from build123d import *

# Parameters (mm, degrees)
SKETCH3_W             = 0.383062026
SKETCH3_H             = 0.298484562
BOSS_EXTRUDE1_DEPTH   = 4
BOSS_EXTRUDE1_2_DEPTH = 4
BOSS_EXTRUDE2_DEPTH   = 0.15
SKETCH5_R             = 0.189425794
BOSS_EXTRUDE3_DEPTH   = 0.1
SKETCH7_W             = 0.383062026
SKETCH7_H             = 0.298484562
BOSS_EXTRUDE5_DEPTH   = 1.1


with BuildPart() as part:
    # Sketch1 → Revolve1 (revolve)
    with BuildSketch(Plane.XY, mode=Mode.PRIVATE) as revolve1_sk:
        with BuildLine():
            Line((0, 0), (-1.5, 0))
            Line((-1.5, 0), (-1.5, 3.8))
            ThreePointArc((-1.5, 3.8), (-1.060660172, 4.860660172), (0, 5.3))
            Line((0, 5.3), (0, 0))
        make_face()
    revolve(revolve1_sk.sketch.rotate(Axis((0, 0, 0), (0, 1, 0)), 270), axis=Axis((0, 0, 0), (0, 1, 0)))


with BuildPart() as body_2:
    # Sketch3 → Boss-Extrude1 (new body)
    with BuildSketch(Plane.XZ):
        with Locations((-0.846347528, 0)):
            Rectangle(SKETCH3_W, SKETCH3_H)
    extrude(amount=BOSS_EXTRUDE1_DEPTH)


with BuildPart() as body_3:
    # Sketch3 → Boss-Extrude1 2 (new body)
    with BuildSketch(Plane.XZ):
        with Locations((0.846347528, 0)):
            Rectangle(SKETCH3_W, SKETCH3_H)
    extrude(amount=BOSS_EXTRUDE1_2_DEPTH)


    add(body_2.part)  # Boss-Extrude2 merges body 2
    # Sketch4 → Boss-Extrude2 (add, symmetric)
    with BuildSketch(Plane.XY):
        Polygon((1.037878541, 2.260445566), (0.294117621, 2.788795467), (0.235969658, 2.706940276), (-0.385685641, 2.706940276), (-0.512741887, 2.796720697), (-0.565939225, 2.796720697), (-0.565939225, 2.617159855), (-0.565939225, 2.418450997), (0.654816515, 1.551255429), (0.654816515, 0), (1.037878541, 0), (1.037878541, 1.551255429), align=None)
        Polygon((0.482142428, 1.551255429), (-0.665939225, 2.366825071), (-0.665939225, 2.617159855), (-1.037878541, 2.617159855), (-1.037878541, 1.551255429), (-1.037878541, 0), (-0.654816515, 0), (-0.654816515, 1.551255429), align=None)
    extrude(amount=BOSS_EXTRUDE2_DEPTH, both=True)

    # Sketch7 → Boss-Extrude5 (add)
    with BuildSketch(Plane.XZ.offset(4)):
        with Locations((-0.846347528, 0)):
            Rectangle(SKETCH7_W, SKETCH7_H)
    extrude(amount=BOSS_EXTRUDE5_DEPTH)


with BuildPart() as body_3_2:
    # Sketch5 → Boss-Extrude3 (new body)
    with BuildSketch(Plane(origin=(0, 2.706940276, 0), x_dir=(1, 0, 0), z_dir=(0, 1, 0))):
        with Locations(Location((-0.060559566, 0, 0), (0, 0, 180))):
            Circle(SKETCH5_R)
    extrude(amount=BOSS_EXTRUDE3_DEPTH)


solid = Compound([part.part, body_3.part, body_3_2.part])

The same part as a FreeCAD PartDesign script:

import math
import FreeCAD as App
import Part
import Sketcher
from FreeCAD import Vector
Q = App.Units.Quantity

doc = App.newDocument("Part")
body = doc.addObject("PartDesign::Body", "Body")

sketch1 = doc.addObject("Sketcher::SketchObject", "Sketch")
body.addObject(sketch1)
sketch1.AttachmentSupport = (doc.XY_Plane, [""])
sketch1.MapMode = "FlatFace"
sketch1.addGeometry([
    Part.LineSegment(Vector(-1.5, 0, 0), Vector(0, 0, 0)),
    Part.LineSegment(Vector(0, 0, 0), Vector(0, 5.3, 0)),
    Part.ArcOfCircle(Part.Circle(Vector(0, 3.8, 0), Vector(0, 0, 1), 1.5), math.radians(90), math.radians(180)),
    Part.LineSegment(Vector(-1.5, 3.8, 0), Vector(-1.5, 0, 0)),
], False)
sketch1.addConstraint([
    Sketcher.Constraint("Coincident", 0, 2, 1, 1),
    Sketcher.Constraint("Coincident", 1, 2, 2, 1),
    Sketcher.Constraint("Tangent", 2, 2, 3, 1),
    Sketcher.Constraint("Coincident", 3, 2, 0, 1),
    Sketcher.Constraint("Horizontal", 0),
    Sketcher.Constraint("Vertical", 1),
    Sketcher.Constraint("Vertical", 3),
    Sketcher.Constraint("Coincident", 0, 2, -1, 1),
    Sketcher.Constraint("PointOnObject", 2, 3, -2),
    Sketcher.Constraint("Radius", 2, Q("1.5 mm")),
    Sketcher.Constraint("DistanceY", 1, 1, 1, 2, Q("5.3 mm")),
])
revolution = doc.addObject("PartDesign::Revolution", "Revolution")
body.addObject(revolution)
revolution.Profile = sketch1
revolution.ReferenceAxis = (sketch1, ["V_Axis"])
revolution.Angle = 360
body2 = doc.addObject("PartDesign::Body", "Body001")

sketch2 = doc.addObject("Sketcher::SketchObject", "Sketch001")
body2.addObject(sketch2)
sketch2.AttachmentSupport = (doc.getObject("XZ_Plane001"), [""])
sketch2.MapMode = "FlatFace"
sketch2.addGeometry([
    Part.LineSegment(Vector(-1.04, 0.15, 0), Vector(-1.04, -0.15, 0)),
    Part.LineSegment(Vector(-1.04, -0.15, 0), Vector(-0.65, -0.15, 0)),
    Part.LineSegment(Vector(-0.65, -0.15, 0), Vector(-0.65, 0.15, 0)),
    Part.LineSegment(Vector(-0.65, 0.15, 0), Vector(-1.04, 0.15, 0)),
], False)
sketch2.addConstraint([
    Sketcher.Constraint("Coincident", 0, 2, 1, 1),
    Sketcher.Constraint("Coincident", 1, 2, 2, 1),
    Sketcher.Constraint("Coincident", 2, 2, 3, 1),
    Sketcher.Constraint("Coincident", 3, 2, 0, 1),
    Sketcher.Constraint("Vertical", 0),
    Sketcher.Constraint("Horizontal", 1),
    Sketcher.Constraint("Vertical", 2),
    Sketcher.Constraint("Horizontal", 3),
    Sketcher.Constraint("DistanceX", 1, 1, 1, 2, Q("0.383062 mm")),
    Sketcher.Constraint("DistanceY", 0, 2, 0, 1, Q("0.298485 mm")),
    Sketcher.Constraint("DistanceX", 0, 2, -1, 1, Q("1.037879 mm")),
    Sketcher.Constraint("DistanceY", 0, 2, -1, 1, Q("0.149242 mm")),
])
pad1 = doc.addObject("PartDesign::Pad", "Pad")
body2.addObject(pad1)
pad1.Profile = sketch2
pad1.Length = 4
body3 = doc.addObject("PartDesign::Body", "Body002")
body3.AllowCompound = True

sketch3 = doc.addObject("Sketcher::SketchObject", "Sketch002")
body3.addObject(sketch3)
sketch3.AttachmentSupport = (doc.getObject("XZ_Plane002"), [""])
sketch3.MapMode = "FlatFace"
sketch3.addGeometry([
    Part.LineSegment(Vector(0.65, 0.15, 0), Vector(0.65, -0.15, 0)),
    Part.LineSegment(Vector(0.65, -0.15, 0), Vector(1.04, -0.15, 0)),
    Part.LineSegment(Vector(1.04, -0.15, 0), Vector(1.04, 0.15, 0)),
    Part.LineSegment(Vector(1.04, 0.15, 0), Vector(0.65, 0.15, 0)),
], False)
sketch3.addConstraint([
    Sketcher.Constraint("Coincident", 0, 2, 1, 1),
    Sketcher.Constraint("Coincident", 1, 2, 2, 1),
    Sketcher.Constraint("Coincident", 2, 2, 3, 1),
    Sketcher.Constraint("Coincident", 3, 2, 0, 1),
    Sketcher.Constraint("Vertical", 0),
    Sketcher.Constraint("Horizontal", 1),
    Sketcher.Constraint("Vertical", 2),
    Sketcher.Constraint("Horizontal", 3),
    Sketcher.Constraint("DistanceX", 1, 1, 1, 2, Q("0.383062 mm")),
    Sketcher.Constraint("DistanceY", 0, 2, 0, 1, Q("0.298485 mm")),
    Sketcher.Constraint("DistanceX", -1, 1, 1, 2, Q("1.037879 mm")),
    Sketcher.Constraint("DistanceY", 0, 2, -1, 1, Q("0.149242 mm")),
])
pad2 = doc.addObject("PartDesign::Pad", "Pad001")
body3.addObject(pad2)
pad2.Profile = sketch3
pad2.Length = 4
doc.recompute()

boolean = doc.addObject("PartDesign::Boolean", "Boolean")
body3.addObject(boolean)
boolean.Type = "Fuse"
boolean.addObjects([body2])

sketch4 = doc.addObject("Sketcher::SketchObject", "Sketch003")
body3.addObject(sketch4)
sketch4.AttachmentSupport = (doc.getObject("XY_Plane002"), [""])
sketch4.MapMode = "FlatFace"
sketch4.addGeometry([
    Part.LineSegment(Vector(1.04, 2.26, 0), Vector(0.29, 2.79, 0)),
    Part.LineSegment(Vector(0.29, 2.79, 0), Vector(0.24, 2.71, 0)),
    Part.LineSegment(Vector(0.24, 2.71, 0), Vector(-0.39, 2.71, 0)),
    Part.LineSegment(Vector(-0.39, 2.71, 0), Vector(-0.51, 2.8, 0)),
    Part.LineSegment(Vector(-0.51, 2.8, 0), Vector(-0.57, 2.8, 0)),
    Part.LineSegment(Vector(-0.57, 2.8, 0), Vector(-0.57, 2.42, 0)),
    Part.LineSegment(Vector(-0.57, 2.42, 0), Vector(0.65, 1.55, 0)),
    Part.LineSegment(Vector(0.65, 1.55, 0), Vector(0.65, 0, 0)),
    Part.LineSegment(Vector(0.65, 0, 0), Vector(1.04, 0, 0)),
    Part.LineSegment(Vector(1.04, 0, 0), Vector(1.04, 2.26, 0)),
    Part.LineSegment(Vector(0.48, 1.55, 0), Vector(-0.67, 2.37, 0)),
    Part.LineSegment(Vector(-0.67, 2.37, 0), Vector(-0.67, 2.62, 0)),
    Part.LineSegment(Vector(-0.67, 2.62, 0), Vector(-1.04, 2.62, 0)),
    Part.LineSegment(Vector(-1.04, 2.62, 0), Vector(-1.04, 0, 0)),
    Part.LineSegment(Vector(-1.04, 0, 0), Vector(-0.65, 0, 0)),
    Part.LineSegment(Vector(-0.65, 0, 0), Vector(-0.65, 1.55, 0)),
    Part.LineSegment(Vector(-0.65, 1.55, 0), Vector(0.48, 1.55, 0)),
], False)
sketch4.addConstraint([
    Sketcher.Constraint("Coincident", 0, 2, 1, 1),
    Sketcher.Constraint("Coincident", 1, 2, 2, 1),
    Sketcher.Constraint("Coincident", 2, 2, 3, 1),
    Sketcher.Constraint("Coincident", 3, 2, 4, 1),
    Sketcher.Constraint("Coincident", 4, 2, 5, 1),
    Sketcher.Constraint("Coincident", 5, 2, 6, 1),
    Sketcher.Constraint("Coincident", 6, 2, 7, 1),
    Sketcher.Constraint("Coincident", 7, 2, 8, 1),
    Sketcher.Constraint("Coincident", 8, 2, 9, 1),
    Sketcher.Constraint("Coincident", 9, 2, 0, 1),
    Sketcher.Constraint("Coincident", 10, 2, 11, 1),
    Sketcher.Constraint("Coincident", 11, 2, 12, 1),
    Sketcher.Constraint("Coincident", 12, 2, 13, 1),
    Sketcher.Constraint("Coincident", 13, 2, 14, 1),
    Sketcher.Constraint("Coincident", 14, 2, 15, 1),
    Sketcher.Constraint("Coincident", 15, 2, 16, 1),
    Sketcher.Constraint("Coincident", 16, 2, 10, 1),
    Sketcher.Constraint("Horizontal", 2),
    Sketcher.Constraint("Horizontal", 4),
    Sketcher.Constraint("Vertical", 5),
    Sketcher.Constraint("Vertical", 7),
    Sketcher.Constraint("Horizontal", 8),
    Sketcher.Constraint("Vertical", 9),
    Sketcher.Constraint("Vertical", 11),
    Sketcher.Constraint("Horizontal", 12),
    Sketcher.Constraint("Vertical", 13),
    Sketcher.Constraint("Horizontal", 14),
    Sketcher.Constraint("Vertical", 15),
    Sketcher.Constraint("Horizontal", 16),
    Sketcher.Constraint("Symmetric", 8, 2, 13, 2, -1, 1),
    Sketcher.Constraint("Symmetric", 7, 2, 14, 2, -2),
    Sketcher.Constraint("Perpendicular", 0, 1),
    Sketcher.Constraint("Perpendicular", 1, 6),
    Sketcher.Constraint("Parallel", 6, 10),
    Sketcher.Constraint("Horizontal", 6, 2, 15, 2),
    Sketcher.Constraint("DistanceX", 10, 2, 5, 2, Q("0.1 mm")),
    Sketcher.Constraint("DistanceX", 12, 2, 12, 1, Q("0.371939 mm")),
    Sketcher.Constraint("DistanceX", 16, 1, 16, 2, Q("1.136959 mm")),
    Sketcher.Constraint("DistanceY", 5, 2, 5, 1, Q("0.37827 mm")),
    Sketcher.Constraint("DistanceY", 13, 2, 13, 1, Q("2.61716 mm")),
    Sketcher.Constraint("DistanceX", 0, 2, 6, 2, Q("0.360699 mm")),
    Sketcher.Constraint("DistanceX", 2, 2, 2, 1, Q("0.621655 mm")),
    Sketcher.Constraint("DistanceX", 4, 2, 4, 1, Q("0.053197 mm")),
    Sketcher.Constraint("DistanceX", 8, 1, 8, 2, Q("0.383062 mm")),
    Sketcher.Constraint("DistanceY", 7, 2, 7, 1, Q("1.551255 mm")),
    Sketcher.Constraint("DistanceY", 9, 1, 9, 2, Q("2.260446 mm")),
    Sketcher.Constraint("DistanceY", 11, 1, 11, 2, Q("0.250335 mm")),
    Sketcher.Constraint("DistanceX", -1, 1, 1, 2, Q("0.23597 mm")),
    Sketcher.Constraint("DistanceY", -1, 1, 1, 2, Q("2.70694 mm")),
])
pad3 = doc.addObject("PartDesign::Pad", "Pad002")
body3.addObject(pad3)
pad3.Profile = sketch4
pad3.Length = 0.3
pad3.Midplane = True

sketch5 = doc.addObject("Sketcher::SketchObject", "Sketch004")
body3.addObject(sketch5)
sketch5.AttachmentSupport = (doc.getObject("XZ_Plane002"), [""])
sketch5.MapMode = "FlatFace"
sketch5.AttachmentOffset = App.Placement(Vector(0, 0, 4), App.Rotation())
sketch5.addGeometry([
    Part.LineSegment(Vector(-1.04, 0.15, 0), Vector(-1.04, -0.15, 0)),
    Part.LineSegment(Vector(-1.04, -0.15, 0), Vector(-0.65, -0.15, 0)),
    Part.LineSegment(Vector(-0.65, -0.15, 0), Vector(-0.65, 0.15, 0)),
    Part.LineSegment(Vector(-0.65, 0.15, 0), Vector(-1.04, 0.15, 0)),
], False)
sketch5.addConstraint([
    Sketcher.Constraint("Coincident", 0, 2, 1, 1),
    Sketcher.Constraint("Coincident", 1, 2, 2, 1),
    Sketcher.Constraint("Coincident", 2, 2, 3, 1),
    Sketcher.Constraint("Coincident", 3, 2, 0, 1),
    Sketcher.Constraint("Vertical", 0),
    Sketcher.Constraint("Horizontal", 1),
    Sketcher.Constraint("Vertical", 2),
    Sketcher.Constraint("Horizontal", 3),
    Sketcher.Constraint("DistanceX", 1, 1, 1, 2, Q("0.383062 mm")),
    Sketcher.Constraint("DistanceY", 0, 2, 0, 1, Q("0.298485 mm")),
    Sketcher.Constraint("DistanceX", 0, 2, -1, 1, Q("1.037879 mm")),
    Sketcher.Constraint("DistanceY", 0, 2, -1, 1, Q("0.149242 mm")),
])
pad4 = doc.addObject("PartDesign::Pad", "Pad003")
body3.addObject(pad4)
pad4.Profile = sketch5
pad4.Length = 1.1
body4 = doc.addObject("PartDesign::Body", "Body003")

sketch6 = doc.addObject("Sketcher::SketchObject", "Sketch005")
body4.addObject(sketch6)
sketch6.AttachmentSupport = (doc.getObject("XZ_Plane003"), [""])
sketch6.MapMode = "FlatFace"
sketch6.AttachmentOffset = App.Placement(Vector(0, 0, -2.70694), App.Rotation())
sketch6.addGeometry(Part.Circle(Vector(-0.06, 0, 0), Vector(0, 0, 1), 0.19), False)
sketch6.addConstraint([
    Sketcher.Constraint("PointOnObject", 0, 3, -1),
    Sketcher.Constraint("Diameter", 0, Q("0.378852 mm")),
    Sketcher.Constraint("DistanceX", 0, 3, -1, 1, Q("0.06056 mm")),
])
pad5 = doc.addObject("PartDesign::Pad", "Pad004")
body4.addObject(pad5)
pad5.Profile = sketch6
pad5.Length = 0.1
pad5.Reversed = True

doc.recompute()
